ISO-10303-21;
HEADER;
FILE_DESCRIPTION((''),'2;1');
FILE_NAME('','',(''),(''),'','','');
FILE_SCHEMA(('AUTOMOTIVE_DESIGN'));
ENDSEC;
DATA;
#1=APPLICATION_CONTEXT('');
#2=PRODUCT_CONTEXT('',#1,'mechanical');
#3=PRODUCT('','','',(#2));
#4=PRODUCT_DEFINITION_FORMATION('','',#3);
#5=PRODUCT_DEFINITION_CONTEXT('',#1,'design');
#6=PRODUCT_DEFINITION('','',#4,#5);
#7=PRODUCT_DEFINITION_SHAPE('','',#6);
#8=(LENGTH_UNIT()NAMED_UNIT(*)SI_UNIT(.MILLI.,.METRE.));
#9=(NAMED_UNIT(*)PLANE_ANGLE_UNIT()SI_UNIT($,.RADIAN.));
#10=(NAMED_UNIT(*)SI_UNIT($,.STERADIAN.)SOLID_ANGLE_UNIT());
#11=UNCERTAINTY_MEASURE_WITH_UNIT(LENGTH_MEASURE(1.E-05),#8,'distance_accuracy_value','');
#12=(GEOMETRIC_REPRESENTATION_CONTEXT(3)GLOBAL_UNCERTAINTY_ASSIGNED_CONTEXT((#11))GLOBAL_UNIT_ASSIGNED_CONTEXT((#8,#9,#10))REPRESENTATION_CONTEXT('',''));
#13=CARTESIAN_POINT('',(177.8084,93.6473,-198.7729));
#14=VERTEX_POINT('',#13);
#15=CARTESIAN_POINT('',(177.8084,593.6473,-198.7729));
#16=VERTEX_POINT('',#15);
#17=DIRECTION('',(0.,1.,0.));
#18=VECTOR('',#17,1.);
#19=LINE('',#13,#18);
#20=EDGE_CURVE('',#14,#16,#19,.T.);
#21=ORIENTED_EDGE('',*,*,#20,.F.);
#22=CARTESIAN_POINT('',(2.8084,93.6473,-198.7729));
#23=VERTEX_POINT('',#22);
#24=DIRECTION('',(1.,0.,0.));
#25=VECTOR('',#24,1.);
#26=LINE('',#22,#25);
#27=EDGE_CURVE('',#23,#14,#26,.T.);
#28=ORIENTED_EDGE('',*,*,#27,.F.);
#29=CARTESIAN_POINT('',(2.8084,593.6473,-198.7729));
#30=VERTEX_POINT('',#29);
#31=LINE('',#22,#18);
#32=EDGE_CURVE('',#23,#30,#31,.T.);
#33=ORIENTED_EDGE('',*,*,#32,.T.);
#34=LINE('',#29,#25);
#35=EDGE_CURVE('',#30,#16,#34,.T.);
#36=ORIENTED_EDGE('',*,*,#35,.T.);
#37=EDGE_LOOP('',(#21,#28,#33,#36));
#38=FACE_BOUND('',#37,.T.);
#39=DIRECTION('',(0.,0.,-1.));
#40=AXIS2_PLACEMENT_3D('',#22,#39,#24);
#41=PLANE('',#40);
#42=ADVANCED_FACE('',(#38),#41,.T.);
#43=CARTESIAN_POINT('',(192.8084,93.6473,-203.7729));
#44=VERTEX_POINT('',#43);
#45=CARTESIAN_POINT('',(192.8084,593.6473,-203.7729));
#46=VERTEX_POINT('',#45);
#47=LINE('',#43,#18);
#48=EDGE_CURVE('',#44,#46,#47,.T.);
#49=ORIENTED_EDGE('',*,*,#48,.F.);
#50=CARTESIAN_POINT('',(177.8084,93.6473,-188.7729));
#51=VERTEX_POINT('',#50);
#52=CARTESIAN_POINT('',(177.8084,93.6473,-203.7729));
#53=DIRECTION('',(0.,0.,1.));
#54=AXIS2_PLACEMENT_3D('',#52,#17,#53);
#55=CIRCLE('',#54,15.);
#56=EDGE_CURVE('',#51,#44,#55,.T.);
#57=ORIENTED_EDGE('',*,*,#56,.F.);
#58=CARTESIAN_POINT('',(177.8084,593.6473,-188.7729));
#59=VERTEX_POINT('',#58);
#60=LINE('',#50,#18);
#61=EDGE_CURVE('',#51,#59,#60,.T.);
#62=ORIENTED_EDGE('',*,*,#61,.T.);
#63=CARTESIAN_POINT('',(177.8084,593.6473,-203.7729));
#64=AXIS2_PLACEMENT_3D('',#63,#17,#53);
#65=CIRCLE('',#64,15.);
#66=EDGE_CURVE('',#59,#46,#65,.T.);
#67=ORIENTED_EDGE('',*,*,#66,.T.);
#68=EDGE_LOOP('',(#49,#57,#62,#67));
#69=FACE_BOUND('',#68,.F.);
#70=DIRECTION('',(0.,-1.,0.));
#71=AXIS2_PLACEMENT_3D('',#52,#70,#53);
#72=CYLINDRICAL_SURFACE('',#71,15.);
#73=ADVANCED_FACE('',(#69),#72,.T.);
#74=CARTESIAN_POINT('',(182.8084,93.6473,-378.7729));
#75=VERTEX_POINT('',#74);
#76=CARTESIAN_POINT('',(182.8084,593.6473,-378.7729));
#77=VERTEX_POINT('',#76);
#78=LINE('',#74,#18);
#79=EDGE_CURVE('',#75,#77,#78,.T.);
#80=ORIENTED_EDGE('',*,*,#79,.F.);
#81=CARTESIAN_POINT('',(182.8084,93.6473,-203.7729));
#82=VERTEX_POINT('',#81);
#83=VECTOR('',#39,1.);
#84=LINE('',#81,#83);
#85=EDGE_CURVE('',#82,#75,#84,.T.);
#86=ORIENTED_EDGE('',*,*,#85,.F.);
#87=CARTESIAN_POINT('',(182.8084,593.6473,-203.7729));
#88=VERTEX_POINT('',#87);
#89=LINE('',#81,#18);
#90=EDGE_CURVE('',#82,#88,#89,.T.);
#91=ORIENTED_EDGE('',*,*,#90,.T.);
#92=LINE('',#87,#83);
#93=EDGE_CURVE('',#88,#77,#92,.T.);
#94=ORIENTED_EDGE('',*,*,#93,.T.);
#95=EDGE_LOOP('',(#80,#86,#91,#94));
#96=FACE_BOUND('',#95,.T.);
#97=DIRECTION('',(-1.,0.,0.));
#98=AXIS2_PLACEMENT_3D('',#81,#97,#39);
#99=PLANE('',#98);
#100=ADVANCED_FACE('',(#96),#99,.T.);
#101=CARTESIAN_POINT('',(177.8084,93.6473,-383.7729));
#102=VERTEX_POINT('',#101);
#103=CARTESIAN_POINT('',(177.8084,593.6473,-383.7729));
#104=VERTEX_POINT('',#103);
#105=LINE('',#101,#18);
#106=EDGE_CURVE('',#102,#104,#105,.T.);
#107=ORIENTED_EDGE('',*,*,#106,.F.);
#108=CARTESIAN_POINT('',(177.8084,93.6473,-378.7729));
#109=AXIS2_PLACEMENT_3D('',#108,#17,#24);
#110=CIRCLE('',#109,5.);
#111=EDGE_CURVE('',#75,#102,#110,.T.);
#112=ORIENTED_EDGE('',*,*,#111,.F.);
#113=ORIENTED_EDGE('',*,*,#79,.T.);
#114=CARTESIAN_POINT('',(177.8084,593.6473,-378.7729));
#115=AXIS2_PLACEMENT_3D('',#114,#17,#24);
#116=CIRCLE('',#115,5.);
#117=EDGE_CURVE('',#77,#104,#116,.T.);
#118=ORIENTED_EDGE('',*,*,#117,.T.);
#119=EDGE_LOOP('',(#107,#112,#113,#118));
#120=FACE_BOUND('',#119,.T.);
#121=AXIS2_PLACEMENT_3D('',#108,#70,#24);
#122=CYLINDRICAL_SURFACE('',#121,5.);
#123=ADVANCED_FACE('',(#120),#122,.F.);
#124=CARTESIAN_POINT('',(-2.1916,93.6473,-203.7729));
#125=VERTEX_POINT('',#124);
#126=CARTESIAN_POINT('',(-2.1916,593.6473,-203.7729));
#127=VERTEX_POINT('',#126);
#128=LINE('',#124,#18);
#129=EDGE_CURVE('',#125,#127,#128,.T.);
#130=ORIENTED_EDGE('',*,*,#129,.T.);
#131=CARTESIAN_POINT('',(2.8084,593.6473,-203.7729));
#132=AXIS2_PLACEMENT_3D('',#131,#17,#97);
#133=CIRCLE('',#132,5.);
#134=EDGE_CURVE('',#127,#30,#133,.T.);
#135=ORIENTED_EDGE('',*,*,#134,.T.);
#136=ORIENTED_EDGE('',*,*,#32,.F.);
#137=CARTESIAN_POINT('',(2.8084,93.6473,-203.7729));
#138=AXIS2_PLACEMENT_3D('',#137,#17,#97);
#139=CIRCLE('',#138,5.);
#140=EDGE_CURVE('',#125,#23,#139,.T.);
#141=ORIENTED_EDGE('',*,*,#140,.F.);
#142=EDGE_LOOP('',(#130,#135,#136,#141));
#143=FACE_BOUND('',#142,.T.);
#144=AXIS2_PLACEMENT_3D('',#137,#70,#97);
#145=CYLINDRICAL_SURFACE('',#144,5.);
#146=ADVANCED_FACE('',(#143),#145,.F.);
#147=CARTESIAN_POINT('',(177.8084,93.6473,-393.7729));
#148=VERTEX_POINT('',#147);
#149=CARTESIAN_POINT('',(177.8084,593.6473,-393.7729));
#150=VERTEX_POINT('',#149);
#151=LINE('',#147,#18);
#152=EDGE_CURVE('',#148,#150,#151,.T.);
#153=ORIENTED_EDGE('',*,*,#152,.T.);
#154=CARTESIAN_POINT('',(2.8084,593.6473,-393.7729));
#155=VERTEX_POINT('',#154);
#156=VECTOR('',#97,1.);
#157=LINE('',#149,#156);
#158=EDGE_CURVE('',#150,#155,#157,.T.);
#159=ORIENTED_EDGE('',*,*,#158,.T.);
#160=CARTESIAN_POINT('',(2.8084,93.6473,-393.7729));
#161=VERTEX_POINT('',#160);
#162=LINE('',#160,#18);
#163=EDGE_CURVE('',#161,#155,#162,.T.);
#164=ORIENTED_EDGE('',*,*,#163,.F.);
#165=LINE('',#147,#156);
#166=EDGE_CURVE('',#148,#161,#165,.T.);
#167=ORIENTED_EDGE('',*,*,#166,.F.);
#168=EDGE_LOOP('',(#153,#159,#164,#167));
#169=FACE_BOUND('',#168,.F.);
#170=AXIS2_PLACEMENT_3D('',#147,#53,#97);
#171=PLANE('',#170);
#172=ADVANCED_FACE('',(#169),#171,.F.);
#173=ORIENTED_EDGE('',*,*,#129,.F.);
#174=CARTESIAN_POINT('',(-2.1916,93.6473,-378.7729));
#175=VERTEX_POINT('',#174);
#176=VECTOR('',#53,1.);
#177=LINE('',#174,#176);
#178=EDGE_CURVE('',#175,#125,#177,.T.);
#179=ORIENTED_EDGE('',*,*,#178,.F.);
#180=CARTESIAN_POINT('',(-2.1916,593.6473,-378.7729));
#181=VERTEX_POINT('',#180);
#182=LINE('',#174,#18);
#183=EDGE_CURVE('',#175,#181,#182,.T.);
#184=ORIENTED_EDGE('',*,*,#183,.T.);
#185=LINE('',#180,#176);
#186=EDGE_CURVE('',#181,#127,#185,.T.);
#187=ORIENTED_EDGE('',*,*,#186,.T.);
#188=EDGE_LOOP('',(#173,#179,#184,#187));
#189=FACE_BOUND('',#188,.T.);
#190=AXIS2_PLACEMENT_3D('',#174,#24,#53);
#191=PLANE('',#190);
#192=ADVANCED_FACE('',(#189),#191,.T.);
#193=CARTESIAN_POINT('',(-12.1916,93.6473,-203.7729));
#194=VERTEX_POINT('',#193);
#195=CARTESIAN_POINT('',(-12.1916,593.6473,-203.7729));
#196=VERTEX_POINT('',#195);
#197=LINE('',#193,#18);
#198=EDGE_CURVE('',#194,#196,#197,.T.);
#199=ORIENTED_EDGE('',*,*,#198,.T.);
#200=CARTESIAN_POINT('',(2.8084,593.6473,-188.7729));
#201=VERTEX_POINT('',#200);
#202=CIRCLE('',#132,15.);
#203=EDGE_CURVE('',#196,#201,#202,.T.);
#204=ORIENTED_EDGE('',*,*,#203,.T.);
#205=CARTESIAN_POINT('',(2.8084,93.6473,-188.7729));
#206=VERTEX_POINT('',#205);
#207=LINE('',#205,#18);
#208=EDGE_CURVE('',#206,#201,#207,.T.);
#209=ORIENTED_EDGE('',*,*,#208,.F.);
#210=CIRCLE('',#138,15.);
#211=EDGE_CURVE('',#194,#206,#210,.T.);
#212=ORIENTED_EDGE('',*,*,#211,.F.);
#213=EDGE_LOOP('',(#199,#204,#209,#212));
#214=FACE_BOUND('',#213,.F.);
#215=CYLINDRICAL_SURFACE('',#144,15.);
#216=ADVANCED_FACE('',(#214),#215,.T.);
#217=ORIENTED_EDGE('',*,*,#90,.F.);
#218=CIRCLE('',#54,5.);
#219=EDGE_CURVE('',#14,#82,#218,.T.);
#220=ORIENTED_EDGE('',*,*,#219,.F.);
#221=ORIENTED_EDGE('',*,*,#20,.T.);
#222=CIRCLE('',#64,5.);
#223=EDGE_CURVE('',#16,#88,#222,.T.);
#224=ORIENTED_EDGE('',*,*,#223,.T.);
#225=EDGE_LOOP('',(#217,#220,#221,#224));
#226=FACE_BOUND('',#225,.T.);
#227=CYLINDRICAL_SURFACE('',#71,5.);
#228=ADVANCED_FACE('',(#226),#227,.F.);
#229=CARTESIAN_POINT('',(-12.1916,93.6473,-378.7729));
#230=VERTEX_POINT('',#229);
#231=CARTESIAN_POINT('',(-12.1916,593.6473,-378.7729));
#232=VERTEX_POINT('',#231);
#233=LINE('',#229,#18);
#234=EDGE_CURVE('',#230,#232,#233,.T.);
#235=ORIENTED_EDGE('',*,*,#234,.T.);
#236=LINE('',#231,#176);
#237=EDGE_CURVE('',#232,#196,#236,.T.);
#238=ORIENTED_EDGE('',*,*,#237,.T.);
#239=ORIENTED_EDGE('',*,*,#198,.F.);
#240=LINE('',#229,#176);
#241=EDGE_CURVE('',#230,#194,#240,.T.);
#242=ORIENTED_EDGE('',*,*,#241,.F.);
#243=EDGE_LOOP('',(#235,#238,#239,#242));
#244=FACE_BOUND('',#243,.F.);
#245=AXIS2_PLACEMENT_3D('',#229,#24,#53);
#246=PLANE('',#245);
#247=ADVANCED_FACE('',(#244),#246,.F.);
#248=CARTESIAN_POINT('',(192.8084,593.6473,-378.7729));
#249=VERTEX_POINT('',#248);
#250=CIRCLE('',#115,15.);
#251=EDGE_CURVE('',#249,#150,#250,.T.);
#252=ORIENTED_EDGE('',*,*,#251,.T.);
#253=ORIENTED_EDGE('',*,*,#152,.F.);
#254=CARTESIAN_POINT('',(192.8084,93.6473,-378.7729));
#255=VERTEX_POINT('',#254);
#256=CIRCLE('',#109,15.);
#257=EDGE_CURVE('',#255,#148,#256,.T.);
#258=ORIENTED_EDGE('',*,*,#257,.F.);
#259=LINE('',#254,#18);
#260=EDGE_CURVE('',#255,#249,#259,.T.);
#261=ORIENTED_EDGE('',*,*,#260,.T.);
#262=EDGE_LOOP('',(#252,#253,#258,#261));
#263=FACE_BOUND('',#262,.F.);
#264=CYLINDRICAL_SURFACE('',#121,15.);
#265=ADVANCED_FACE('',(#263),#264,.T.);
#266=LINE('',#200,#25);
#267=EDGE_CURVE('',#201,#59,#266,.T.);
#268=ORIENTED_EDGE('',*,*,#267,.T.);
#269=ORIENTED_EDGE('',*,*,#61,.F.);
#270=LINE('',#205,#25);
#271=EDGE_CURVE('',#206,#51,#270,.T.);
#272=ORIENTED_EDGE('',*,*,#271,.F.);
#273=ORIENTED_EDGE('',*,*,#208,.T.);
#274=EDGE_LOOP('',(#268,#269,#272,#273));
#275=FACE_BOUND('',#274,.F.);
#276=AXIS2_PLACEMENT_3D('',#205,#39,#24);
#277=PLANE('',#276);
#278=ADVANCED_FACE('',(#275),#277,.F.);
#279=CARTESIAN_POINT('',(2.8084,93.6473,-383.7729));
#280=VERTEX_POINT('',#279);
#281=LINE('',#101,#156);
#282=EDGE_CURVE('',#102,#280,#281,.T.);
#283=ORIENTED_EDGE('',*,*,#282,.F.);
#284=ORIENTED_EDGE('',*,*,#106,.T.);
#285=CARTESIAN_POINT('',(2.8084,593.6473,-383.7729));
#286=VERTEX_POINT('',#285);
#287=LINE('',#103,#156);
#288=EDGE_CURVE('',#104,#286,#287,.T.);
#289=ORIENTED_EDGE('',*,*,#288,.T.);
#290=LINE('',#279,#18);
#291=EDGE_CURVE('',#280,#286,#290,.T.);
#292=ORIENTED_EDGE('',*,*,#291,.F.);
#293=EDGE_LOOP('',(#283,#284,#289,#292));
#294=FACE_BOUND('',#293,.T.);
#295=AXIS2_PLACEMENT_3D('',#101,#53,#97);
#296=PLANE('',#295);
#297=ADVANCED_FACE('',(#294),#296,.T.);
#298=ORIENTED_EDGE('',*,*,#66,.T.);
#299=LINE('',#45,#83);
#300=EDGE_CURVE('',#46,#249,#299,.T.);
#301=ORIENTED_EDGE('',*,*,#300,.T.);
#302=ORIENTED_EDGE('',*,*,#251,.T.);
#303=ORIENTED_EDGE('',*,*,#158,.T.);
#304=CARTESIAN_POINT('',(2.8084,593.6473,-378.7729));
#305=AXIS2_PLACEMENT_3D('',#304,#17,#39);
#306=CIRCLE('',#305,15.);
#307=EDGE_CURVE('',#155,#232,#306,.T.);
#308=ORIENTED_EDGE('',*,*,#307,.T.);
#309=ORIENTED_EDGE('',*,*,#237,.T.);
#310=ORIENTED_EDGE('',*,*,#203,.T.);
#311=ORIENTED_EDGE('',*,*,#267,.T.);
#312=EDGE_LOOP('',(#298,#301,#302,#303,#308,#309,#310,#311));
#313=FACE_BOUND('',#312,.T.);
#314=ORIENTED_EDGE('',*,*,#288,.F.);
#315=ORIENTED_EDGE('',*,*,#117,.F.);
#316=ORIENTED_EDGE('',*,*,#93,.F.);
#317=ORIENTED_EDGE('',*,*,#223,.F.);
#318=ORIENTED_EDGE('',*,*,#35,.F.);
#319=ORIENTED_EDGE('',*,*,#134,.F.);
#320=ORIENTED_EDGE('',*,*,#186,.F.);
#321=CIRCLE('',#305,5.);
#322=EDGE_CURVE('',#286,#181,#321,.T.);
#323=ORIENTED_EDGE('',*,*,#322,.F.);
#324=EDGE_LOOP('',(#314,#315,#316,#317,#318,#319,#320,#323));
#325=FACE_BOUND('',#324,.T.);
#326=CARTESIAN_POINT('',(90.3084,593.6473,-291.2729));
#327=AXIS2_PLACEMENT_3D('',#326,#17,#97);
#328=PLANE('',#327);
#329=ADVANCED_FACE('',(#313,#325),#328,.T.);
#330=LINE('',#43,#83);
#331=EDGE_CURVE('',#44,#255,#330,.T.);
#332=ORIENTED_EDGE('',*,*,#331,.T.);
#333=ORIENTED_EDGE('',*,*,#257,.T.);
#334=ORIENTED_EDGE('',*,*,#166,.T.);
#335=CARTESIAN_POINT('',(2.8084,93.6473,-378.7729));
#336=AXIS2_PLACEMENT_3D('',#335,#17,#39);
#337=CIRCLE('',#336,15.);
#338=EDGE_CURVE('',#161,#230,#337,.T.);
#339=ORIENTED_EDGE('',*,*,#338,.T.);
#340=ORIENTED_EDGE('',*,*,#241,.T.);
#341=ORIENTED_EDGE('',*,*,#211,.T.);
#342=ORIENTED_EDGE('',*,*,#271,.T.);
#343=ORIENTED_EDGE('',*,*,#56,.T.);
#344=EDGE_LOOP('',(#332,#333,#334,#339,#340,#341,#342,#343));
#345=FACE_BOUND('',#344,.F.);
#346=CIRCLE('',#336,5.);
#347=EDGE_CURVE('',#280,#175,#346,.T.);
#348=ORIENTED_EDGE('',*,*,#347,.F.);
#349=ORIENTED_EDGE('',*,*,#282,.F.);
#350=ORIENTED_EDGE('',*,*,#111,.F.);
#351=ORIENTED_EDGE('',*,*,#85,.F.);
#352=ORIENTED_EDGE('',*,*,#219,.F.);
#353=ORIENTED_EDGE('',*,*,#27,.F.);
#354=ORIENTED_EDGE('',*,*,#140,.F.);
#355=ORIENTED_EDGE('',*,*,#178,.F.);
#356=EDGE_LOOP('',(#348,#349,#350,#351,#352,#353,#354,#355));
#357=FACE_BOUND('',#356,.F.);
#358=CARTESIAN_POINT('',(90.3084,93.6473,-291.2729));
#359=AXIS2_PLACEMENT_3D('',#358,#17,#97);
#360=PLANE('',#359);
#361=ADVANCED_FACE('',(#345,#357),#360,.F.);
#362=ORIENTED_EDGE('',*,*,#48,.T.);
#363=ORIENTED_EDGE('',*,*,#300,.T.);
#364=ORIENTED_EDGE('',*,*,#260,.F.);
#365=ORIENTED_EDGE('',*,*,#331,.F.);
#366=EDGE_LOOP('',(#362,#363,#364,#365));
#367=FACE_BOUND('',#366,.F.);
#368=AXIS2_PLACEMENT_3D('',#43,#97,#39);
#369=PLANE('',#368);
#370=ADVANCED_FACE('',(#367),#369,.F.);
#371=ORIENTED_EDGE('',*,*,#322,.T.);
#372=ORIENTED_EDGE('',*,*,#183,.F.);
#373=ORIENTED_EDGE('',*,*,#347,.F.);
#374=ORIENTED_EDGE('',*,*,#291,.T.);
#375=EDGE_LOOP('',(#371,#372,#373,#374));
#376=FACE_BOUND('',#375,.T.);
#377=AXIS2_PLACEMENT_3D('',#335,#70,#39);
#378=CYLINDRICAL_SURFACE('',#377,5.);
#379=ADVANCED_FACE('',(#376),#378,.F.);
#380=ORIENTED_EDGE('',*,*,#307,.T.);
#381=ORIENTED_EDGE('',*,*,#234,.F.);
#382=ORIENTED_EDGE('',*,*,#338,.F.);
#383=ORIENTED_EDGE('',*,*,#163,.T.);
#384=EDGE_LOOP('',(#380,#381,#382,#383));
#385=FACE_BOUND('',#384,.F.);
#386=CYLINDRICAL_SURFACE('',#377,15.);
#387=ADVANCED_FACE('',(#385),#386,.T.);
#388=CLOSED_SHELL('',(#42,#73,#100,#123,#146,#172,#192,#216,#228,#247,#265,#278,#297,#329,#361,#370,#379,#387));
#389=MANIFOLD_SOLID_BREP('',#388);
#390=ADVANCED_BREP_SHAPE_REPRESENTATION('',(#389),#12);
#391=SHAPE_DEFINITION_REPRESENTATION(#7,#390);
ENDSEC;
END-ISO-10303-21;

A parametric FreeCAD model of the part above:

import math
import FreeCAD as App
import Part
import Sketcher

V = App.Vector

doc = App.newDocument("Part")
body = doc.addObject("PartDesign::Body", "Body")

sketch1 = body.newObject("Sketcher::SketchObject", "Sketch")
sketch1.AttachmentSupport = (doc.getObject("XZ_Plane"), [""])
sketch1.MapMode = "FlatFace"
sketch1.AttachmentOffset = App.Placement(V(0, 0, -93.6473), App.Rotation())
sketch1.addGeometry(Part.ArcOfCircle(Part.Circle(V(3, -204, 0), V(0, 0, 1), 15), math.radians(90), math.radians(180)), False)
sketch1.addGeometry(Part.LineSegment(V(3, -189, 0), V(178, -189, 0)), False)
sketch1.addGeometry(Part.ArcOfCircle(Part.Circle(V(178, -204, 0), V(0, 0, 1), 15), math.radians(0), math.radians(90)), False)
sketch1.addGeometry(Part.LineSegment(V(193, -204, 0), V(193, -379, 0)), False)
sketch1.addGeometry(Part.ArcOfCircle(Part.Circle(V(178, -379, 0), V(0, 0, 1), 15), math.radians(-90), math.radians(0)), False)
sketch1.addGeometry(Part.LineSegment(V(178, -394, 0), V(3, -394, 0)), False)
sketch1.addGeometry(Part.ArcOfCircle(Part.Circle(V(3, -379, 0), V(0, 0, 1), 15), math.radians(180), math.radians(270)), False)
sketch1.addGeometry(Part.LineSegment(V(-12, -379, 0), V(-12, -204, 0)), False)
sketch1.addGeometry(Part.LineSegment(V(178, -199, 0), V(3, -199, 0)), False)
sketch1.addGeometry(Part.ArcOfCircle(Part.Circle(V(3, -204, 0), V(0, 0, 1), 5), math.radians(90), math.radians(180)), False)
sketch1.addGeometry(Part.LineSegment(V(-2, -204, 0), V(-2, -379, 0)), False)
sketch1.addGeometry(Part.ArcOfCircle(Part.Circle(V(3, -379, 0), V(0, 0, 1), 5), math.radians(180), math.radians(270)), False)
sketch1.addGeometry(Part.LineSegment(V(3, -384, 0), V(178, -384, 0)), False)
sketch1.addGeometry(Part.ArcOfCircle(Part.Circle(V(178, -379, 0), V(0, 0, 1), 5), math.radians(-90), math.radians(0)), False)
sketch1.addGeometry(Part.LineSegment(V(183, -379, 0), V(183, -204, 0)), False)
sketch1.addGeometry(Part.ArcOfCircle(Part.Circle(V(178, -204, 0), V(0, 0, 1), 5), math.radians(0), math.radians(90)), False)
sketch1.addConstraint(Sketcher.Constraint("Tangent", 0, 1, 1, 1))
sketch1.addConstraint(Sketcher.Constraint("Tangent", 1, 2, 2, 2))
sketch1.addConstraint(Sketcher.Constraint("Tangent", 2, 1, 3, 1))
sketch1.addConstraint(Sketcher.Constraint("Tangent", 3, 2, 4, 2))
sketch1.addConstraint(Sketcher.Constraint("Tangent", 4, 1, 5, 1))
sketch1.addConstraint(Sketcher.Constraint("Tangent", 5, 2, 6, 2))
sketch1.addConstraint(Sketcher.Constraint("Tangent", 6, 1, 7, 1))
sketch1.addConstraint(Sketcher.Constraint("Tangent", 7, 2, 0, 2))
sketch1.addConstraint(Sketcher.Constraint("Tangent", 8, 2, 9, 1))
sketch1.addConstraint(Sketcher.Constraint("Tangent", 9, 2, 10, 1))
sketch1.addConstraint(Sketcher.Constraint("Tangent", 10, 2, 11, 1))
sketch1.addConstraint(Sketcher.Constraint("Tangent", 11, 2, 12, 1))
sketch1.addConstraint(Sketcher.Constraint("Tangent", 12, 2, 13, 1))
sketch1.addConstraint(Sketcher.Constraint("Tangent", 13, 2, 14, 1))
sketch1.addConstraint(Sketcher.Constraint("Tangent", 14, 2, 15, 1))
sketch1.addConstraint(Sketcher.Constraint("Tangent", 15, 2, 8, 1))
sketch1.addConstraint(Sketcher.Constraint("Horizontal", 1))
sketch1.addConstraint(Sketcher.Constraint("Vertical", 3))
sketch1.addConstraint(Sketcher.Constraint("Horizontal", 5))
sketch1.addConstraint(Sketcher.Constraint("Vertical", 7))
sketch1.addConstraint(Sketcher.Constraint("Horizontal", 8))
sketch1.addConstraint(Sketcher.Constraint("Vertical", 10))
sketch1.addConstraint(Sketcher.Constraint("Horizontal", 12))
sketch1.addConstraint(Sketcher.Constraint("Vertical", 14))
sketch1.addConstraint(Sketcher.Constraint("Coincident", 9, 3, 0, 3))
sketch1.addConstraint(Sketcher.Constraint("Coincident", 11, 3, 6, 3))
sketch1.addConstraint(Sketcher.Constraint("Coincident", 13, 3, 4, 3))
sketch1.addConstraint(Sketcher.Constraint("Equal", 0, 2))
sketch1.addConstraint(Sketcher.Constraint("Equal", 2, 4))
sketch1.addConstraint(Sketcher.Constraint("Equal", 4, 6))
sketch1.addConstraint(Sketcher.Constraint("Equal", 13, 15))
sketch1.addConstraint(Sketcher.Constraint("Equal", 12, 3))
sketch1.addConstraint(Sketcher.Constraint("Radius", 0, 15.0))
sketch1.addConstraint(Sketcher.Constraint("Radius", 9, 5.0))
sketch1.addConstraint(Sketcher.Constraint("DistanceX", 1, 1, 1, 2, 175.0))
sketch1.addConstraint(Sketcher.Constraint("DistanceY", 0, 3, -1, 1, 203.773))
sketch1.addConstraint(Sketcher.Constraint("DistanceX", -1, 1, 0, 3, 2.8084))
pad1 = body.newObject("PartDesign::Pad", "Pad")
pad1.Profile = sketch1
pad1.Length = 500
pad1.Reversed = True

doc.recompute()
